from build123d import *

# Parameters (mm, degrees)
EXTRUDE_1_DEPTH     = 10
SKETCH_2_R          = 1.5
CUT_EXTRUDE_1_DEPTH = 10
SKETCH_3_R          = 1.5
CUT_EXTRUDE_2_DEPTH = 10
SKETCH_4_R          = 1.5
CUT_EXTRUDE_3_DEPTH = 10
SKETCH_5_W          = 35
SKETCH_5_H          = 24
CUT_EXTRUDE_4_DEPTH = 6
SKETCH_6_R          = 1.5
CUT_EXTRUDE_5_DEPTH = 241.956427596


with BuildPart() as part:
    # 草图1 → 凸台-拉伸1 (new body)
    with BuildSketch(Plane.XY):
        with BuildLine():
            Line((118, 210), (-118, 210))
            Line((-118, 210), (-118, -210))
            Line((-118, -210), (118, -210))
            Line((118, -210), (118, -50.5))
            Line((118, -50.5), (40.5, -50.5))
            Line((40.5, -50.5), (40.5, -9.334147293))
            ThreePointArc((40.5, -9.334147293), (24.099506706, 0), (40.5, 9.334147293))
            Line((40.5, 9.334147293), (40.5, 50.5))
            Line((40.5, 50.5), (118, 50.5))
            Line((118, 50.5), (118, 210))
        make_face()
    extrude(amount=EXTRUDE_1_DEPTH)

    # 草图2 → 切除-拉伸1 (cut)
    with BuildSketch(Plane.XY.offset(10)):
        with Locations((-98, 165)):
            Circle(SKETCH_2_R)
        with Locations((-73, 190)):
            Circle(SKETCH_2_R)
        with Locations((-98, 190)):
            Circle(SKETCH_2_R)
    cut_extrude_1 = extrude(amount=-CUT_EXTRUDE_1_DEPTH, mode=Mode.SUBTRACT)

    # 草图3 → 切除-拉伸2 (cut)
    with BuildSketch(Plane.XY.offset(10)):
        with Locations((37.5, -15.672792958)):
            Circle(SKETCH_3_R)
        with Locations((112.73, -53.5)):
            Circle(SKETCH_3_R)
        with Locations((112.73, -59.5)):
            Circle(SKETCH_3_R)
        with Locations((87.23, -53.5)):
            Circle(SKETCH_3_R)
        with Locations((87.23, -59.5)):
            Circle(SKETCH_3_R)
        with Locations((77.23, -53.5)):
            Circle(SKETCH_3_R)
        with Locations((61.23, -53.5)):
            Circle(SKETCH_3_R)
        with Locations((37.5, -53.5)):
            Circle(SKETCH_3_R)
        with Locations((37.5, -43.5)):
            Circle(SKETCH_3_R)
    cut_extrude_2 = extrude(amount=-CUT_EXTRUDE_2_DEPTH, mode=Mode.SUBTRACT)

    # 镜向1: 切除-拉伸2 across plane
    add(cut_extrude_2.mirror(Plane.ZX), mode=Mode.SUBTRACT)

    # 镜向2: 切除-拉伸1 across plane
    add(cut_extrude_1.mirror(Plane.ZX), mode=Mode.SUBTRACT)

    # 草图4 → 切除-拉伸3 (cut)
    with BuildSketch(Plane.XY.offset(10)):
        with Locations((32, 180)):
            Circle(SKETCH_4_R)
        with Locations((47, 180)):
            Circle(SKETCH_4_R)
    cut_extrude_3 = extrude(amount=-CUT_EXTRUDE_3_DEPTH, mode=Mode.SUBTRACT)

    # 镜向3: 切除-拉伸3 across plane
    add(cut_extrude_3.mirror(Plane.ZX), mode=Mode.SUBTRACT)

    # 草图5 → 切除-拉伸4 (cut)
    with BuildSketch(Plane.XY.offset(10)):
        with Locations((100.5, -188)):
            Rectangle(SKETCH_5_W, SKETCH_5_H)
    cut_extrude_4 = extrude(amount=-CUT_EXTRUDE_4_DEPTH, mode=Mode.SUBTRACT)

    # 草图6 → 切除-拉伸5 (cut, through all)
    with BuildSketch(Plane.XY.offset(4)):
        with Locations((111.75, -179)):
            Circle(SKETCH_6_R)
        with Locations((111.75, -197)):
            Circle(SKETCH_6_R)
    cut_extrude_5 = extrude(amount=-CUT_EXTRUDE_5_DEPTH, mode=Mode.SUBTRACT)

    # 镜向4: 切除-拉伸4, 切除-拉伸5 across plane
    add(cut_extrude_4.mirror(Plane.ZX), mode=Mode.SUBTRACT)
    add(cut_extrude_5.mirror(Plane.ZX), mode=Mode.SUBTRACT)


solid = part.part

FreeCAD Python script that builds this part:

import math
import FreeCAD as App
import Part
import Sketcher


def add_polygon(sketch, points):
    """Adds a closed chain of lines whose ends are joined by coincident constraints."""
    first, n = sketch.GeometryCount, len(points)
    for a, b in zip(points, points[1:] + points[:1]):
        sketch.addGeometry(Part.LineSegment(App.Vector(*a, 0), App.Vector(*b, 0)), False)
    for i in range(n):
        sketch.addConstraint(Sketcher.Constraint("Coincident", first + i, 2, first + (i + 1) % n, 1))

doc = App.newDocument("Part")
body = doc.addObject("PartDesign::Body", "Body")

# Sketch on XY plane
sketch1 = body.newObject("Sketcher::SketchObject", "Sketch")
sketch1.AttachmentSupport = (doc.getObject("XY_Plane"), [""])
sketch1.MapMode = "FlatFace"
sketch1.addGeometry(Part.LineSegment(App.Vector(118, 210, 0), App.Vector(-118, 210, 0)), False)
sketch1.addGeometry(Part.LineSegment(App.Vector(-118, 210, 0), App.Vector(-118, -210, 0)), False)
sketch1.addGeometry(Part.LineSegment(App.Vector(-118, -210, 0), App.Vector(118, -210, 0)), False)
sketch1.addGeometry(Part.LineSegment(App.Vector(118, -210, 0), App.Vector(118, -50, 0)), False)
sketch1.addGeometry(Part.LineSegment(App.Vector(118, -50, 0), App.Vector(40, -50, 0)), False)
sketch1.addGeometry(Part.LineSegment(App.Vector(40, -50, 0), App.Vector(40, -9, 0)), False)
sketch1.addGeometry(Part.ArcOfCircle(Part.Circle(App.Vector(35, 0, 0), App.Vector(0, 0, 1), 11), math.radians(59), math.radians(301)), False)
sketch1.addGeometry(Part.LineSegment(App.Vector(40, 9, 0), App.Vector(40, 50, 0)), False)
sketch1.addGeometry(Part.LineSegment(App.Vector(40, 50, 0), App.Vector(118, 50, 0)), False)
sketch1.addGeometry(Part.LineSegment(App.Vector(118, 50, 0), App.Vector(118, 210, 0)), False)
sketch1.addConstraint(Sketcher.Constraint("Coincident", 0, 2, 1, 1))
sketch1.addConstraint(Sketcher.Constraint("Coincident", 1, 2, 2, 1))
sketch1.addConstraint(Sketcher.Constraint("Coincident", 2, 2, 3, 1))
sketch1.addConstraint(Sketcher.Constraint("Coincident", 3, 2, 4, 1))
sketch1.addConstraint(Sketcher.Constraint("Coincident", 4, 2, 5, 1))
sketch1.addConstraint(Sketcher.Constraint("Coincident", 5, 2, 6, 2))
sketch1.addConstraint(Sketcher.Constraint("Coincident", 6, 1, 7, 1))
sketch1.addConstraint(Sketcher.Constraint("Coincident", 7, 2, 8, 1))
sketch1.addConstraint(Sketcher.Constraint("Coincident", 8, 2, 9, 1))
sketch1.addConstraint(Sketcher.Constraint("Coincident", 9, 2, 0, 1))
sketch1.addConstraint(Sketcher.Constraint("Horizontal", 0))
sketch1.addConstraint(Sketcher.Constraint("Vertical", 1))
sketch1.addConstraint(Sketcher.Constraint("Horizontal", 2))
sketch1.addConstraint(Sketcher.Constraint("Vertical", 3))
sketch1.addConstraint(Sketcher.Constraint("Horizontal", 4))
sketch1.addConstraint(Sketcher.Constraint("Vertical", 5))
sketch1.addConstraint(Sketcher.Constraint("Vertical", 7))
sketch1.addConstraint(Sketcher.Constraint("Horizontal", 8))
sketch1.addConstraint(Sketcher.Constraint("Vertical", 9))
sketch1.addConstraint(Sketcher.Constraint("Symmetric", 0, 2, 2, 2, -1, 1))
sketch1.addConstraint(Sketcher.Constraint("Symmetric", 5, 2, 6, 1, -1))
sketch1.addConstraint(Sketcher.Constraint("Symmetric", 3, 2, 8, 2, -1))
sketch1.addConstraint(Sketcher.Constraint("DistanceX", 0, 2, 0, 1, 236.0))
sketch1.addConstraint(Sketcher.Constraint("DistanceY", 1, 2, 1, 1, 420.0))
sketch1.addConstraint(Sketcher.Constraint("DistanceX", 4, 2, 4, 1, 77.5))
sketch1.addConstraint(Sketcher.Constraint("DistanceY", 3, 1, 3, 2, 159.5))
sketch1.addConstraint(Sketcher.Constraint("Radius", 6, 10.856457))
sketch1.addConstraint(Sketcher.Constraint("DistanceY", 5, 1, 5, 2, 41.165853))
pad1 = body.newObject("PartDesign::Pad", "Pad")
pad1.Profile = sketch1
pad1.Length = 10

# Sketch on XY plane
sketch2 = body.newObject("Sketcher::SketchObject", "Sketch001")
sketch2.AttachmentSupport = (doc.getObject("XY_Plane"), [""])
sketch2.MapMode = "FlatFace"
sketch2.AttachmentOffset = App.Placement(App.Vector(0, 0, 10), App.Rotation())
sketch2.addGeometry(Part.Circle(App.Vector(-98, 165, 0), App.Vector(0, 0, 1), 1.5), False)
sketch2.addGeometry(Part.Circle(App.Vector(-73, 190, 0), App.Vector(0, 0, 1), 1.5), False)
sketch2.addGeometry(Part.Circle(App.Vector(-98, 190, 0), App.Vector(0, 0, 1), 1.5), False)
sketch2.addConstraint(Sketcher.Constraint("Equal", 0, 1))
sketch2.addConstraint(Sketcher.Constraint("Equal", 1, 2))
sketch2.addConstraint(Sketcher.Constraint("Horizontal", 1, 3, 2, 3))
sketch2.addConstraint(Sketcher.Constraint("Vertical", 0, 3, 2, 3))
sketch2.addConstraint(Sketcher.Constraint("Diameter", 0, 3.0))
sketch2.addConstraint(Sketcher.Constraint("DistanceX", 0, 3, -1, 1, 98.0))
sketch2.addConstraint(Sketcher.Constraint("DistanceY", -1, 1, 0, 3, 165.0))
sketch2.addConstraint(Sketcher.Constraint("DistanceX", 1, 3, -1, 1, 73.0))
sketch2.addConstraint(Sketcher.Constraint("DistanceY", -1, 1, 1, 3, 190.0))
pocket1 = body.newObject("PartDesign::Pocket", "Pocket")
pocket1.Profile = sketch2
pocket1.Length = 10

# Sketch on XY plane
sketch3 = body.newObject("Sketcher::SketchObject", "Sketch002")
sketch3.AttachmentSupport = (doc.getObject("XY_Plane"), [""])
sketch3.MapMode = "FlatFace"
sketch3.AttachmentOffset = App.Placement(App.Vector(0, 0, 10), App.Rotation())
sketch3.addGeometry(Part.Circle(App.Vector(37.5, -15.7, 0), App.Vector(0, 0, 1), 1.5), False)
sketch3.addGeometry(Part.Circle(App.Vector(112.7, -53.5, 0), App.Vector(0, 0, 1), 1.5), False)
sketch3.addGeometry(Part.Circle(App.Vector(112.7, -59.5, 0), App.Vector(0, 0, 1), 1.5), False)
sketch3.addGeometry(Part.Circle(App.Vector(87.2, -53.5, 0), App.Vector(0, 0, 1), 1.5), False)
sketch3.addGeometry(Part.Circle(App.Vector(87.2, -59.5, 0), App.Vector(0, 0, 1), 1.5), False)
sketch3.addGeometry(Part.Circle(App.Vector(77.2, -53.5, 0), App.Vector(0, 0, 1), 1.5), False)
sketch3.addGeometry(Part.Circle(App.Vector(61.2, -53.5, 0), App.Vector(0, 0, 1), 1.5), False)
sketch3.addGeometry(Part.Circle(App.Vector(37.5, -53.5, 0), App.Vector(0, 0, 1), 1.5), False)
sketch3.addGeometry(Part.Circle(App.Vector(37.5, -43.5, 0), App.Vector(0, 0, 1), 1.5), False)
sketch3.addConstraint(Sketcher.Constraint("Equal", 0, 1))
sketch3.addConstraint(Sketcher.Constraint("Equal", 1, 2))
sketch3.addConstraint(Sketcher.Constraint("Equal", 2, 3))
sketch3.addConstraint(Sketcher.Constraint("Equal", 3, 4))
sketch3.addConstraint(Sketcher.Constraint("Equal", 4, 5))
sketch3.addConstraint(Sketcher.Constraint("Equal", 5, 6))
sketch3.addConstraint(Sketcher.Constraint("Equal", 6, 7))
sketch3.addConstraint(Sketcher.Constraint("Equal", 7, 8))
sketch3.addConstraint(Sketcher.Constraint("Horizontal", 1, 3, 3, 3))
sketch3.addConstraint(Sketcher.Constraint("Horizontal", 2, 3, 4, 3))
sketch3.addConstraint(Sketcher.Constraint("Horizontal", 3, 3, 5, 3))
sketch3.addConstraint(Sketcher.Constraint("Horizontal", 5, 3, 6, 3))
sketch3.addConstraint(Sketcher.Constraint("Horizontal", 6, 3, 7, 3))
sketch3.addConstraint(Sketcher.Constraint("Vertical", 1, 3, 2, 3))
sketch3.addConstraint(Sketcher.Constraint("Vertical", 3, 3, 4, 3))
sketch3.addConstraint(Sketcher.Constraint("Vertical", 0, 3, 7, 3))
sketch3.addConstraint(Sketcher.Constraint("Vertical", 7, 3, 8, 3))
sketch3.addConstraint(Sketcher.Constraint("Diameter", 0, 3.0))
sketch3.addConstraint(Sketcher.Constraint("DistanceY", 2, 3, 1, 3, 6.0))
sketch3.addConstraint(Sketcher.Constraint("DistanceX", 5, 3, 3, 3, 10.0))
sketch3.addConstraint(Sketcher.Constraint("DistanceX", 6, 3, 5, 3, 16.0))
sketch3.addConstraint(Sketcher.Constraint("DistanceY", 7, 3, 8, 3, 10.0))
sketch3.addConstraint(Sketcher.Constraint("DistanceX", -1, 1, 0, 3, 37.5))
sketch3.addConstraint(Sketcher.Constraint("DistanceY", 1, 3, -1, 1, 53.5))
sketch3.addConstraint(Sketcher.Constraint("DistanceX", 3, 3, 1, 3, 25.5))
sketch3.addConstraint(Sketcher.Constraint("DistanceX", -1, 1, 1, 3, 112.73))
sketch3.addConstraint(Sketcher.Constraint("DistanceY", 0, 3, -1, 1, 15.672793))
pocket2 = body.newObject("PartDesign::Pocket", "Pocket001")
pocket2.Profile = sketch3
pocket2.Length = 10
doc.recompute()

mirrored = body.newObject("PartDesign::Mirrored", "Mirrored")
mirrored.Originals = [pocket2]
mirrored.MirrorPlane = (doc.getObject("XZ_Plane"), [""])
body.Tip = mirrored
doc.recompute()

mirrored2 = body.newObject("PartDesign::Mirrored", "Mirrored001")
mirrored2.Originals = [pocket1]
mirrored2.MirrorPlane = (doc.getObject("XZ_Plane"), [""])
body.Tip = mirrored2

# Sketch on XY plane
sketch4 = body.newObject("Sketcher::SketchObject", "Sketch003")
sketch4.AttachmentSupport = (doc.getObject("XY_Plane"), [""])
sketch4.MapMode = "FlatFace"
sketch4.AttachmentOffset = App.Placement(App.Vector(0, 0, 10), App.Rotation())
sketch4.addGeometry(Part.Circle(App.Vector(32, 180, 0), App.Vector(0, 0, 1), 1.5), False)
sketch4.addGeometry(Part.Circle(App.Vector(47, 180, 0), App.Vector(0, 0, 1), 1.5), False)
sketch4.addConstraint(Sketcher.Constraint("Equal", 0, 1))
sketch4.addConstraint(Sketcher.Constraint("Horizontal", 0, 3, 1, 3))
sketch4.addConstraint(Sketcher.Constraint("Diameter", 0, 3.0))
sketch4.addConstraint(Sketcher.Constraint("DistanceX", -1, 1, 0, 3, 32.0))
sketch4.addConstraint(Sketcher.Constraint("DistanceY", -1, 1, 0, 3, 180.0))
sketch4.addConstraint(Sketcher.Constraint("DistanceX", -1, 1, 1, 3, 47.0))
pocket3 = body.newObject("PartDesign::Pocket", "Pocket002")
pocket3.Profile = sketch4
pocket3.Length = 10
doc.recompute()

mirrored3 = body.newObject("PartDesign::Mirrored", "Mirrored002")
mirrored3.Originals = [pocket3]
mirrored3.MirrorPlane = (doc.getObject("XZ_Plane"), [""])
body.Tip = mirrored3

# Sketch on XY plane
sketch5 = body.newObject("Sketcher::SketchObject", "Sketch004")
sketch5.AttachmentSupport = (doc.getObject("XY_Plane"), [""])
sketch5.MapMode = "FlatFace"
sketch5.AttachmentOffset = App.Placement(App.Vector(0, 0, 10), App.Rotation())
add_polygon(sketch5, [(83, -176), (83, -200), (118, -200), (118, -176)])  # lines 0-3
sketch5.addConstraint(Sketcher.Constraint("Vertical", 0))
sketch5.addConstraint(Sketcher.Constraint("Horizontal", 1))
sketch5.addConstraint(Sketcher.Constraint("Vertical", 2))
sketch5.addConstraint(Sketcher.Constraint("Horizontal", 3))
sketch5.addConstraint(Sketcher.Constraint("DistanceX", 1, 1, 1, 2, 35.0))
sketch5.addConstraint(Sketcher.Constraint("DistanceY", 0, 2, 0, 1, 24.0))
sketch5.addConstraint(Sketcher.Constraint("DistanceX", -1, 1, 0, 2, 83.0))
sketch5.addConstraint(Sketcher.Constraint("DistanceY", 0, 2, -1, 1, 200.0))
pocket4 = body.newObject("PartDesign::Pocket", "Pocket003")
pocket4.Profile = sketch5
pocket4.Length = 6

# Sketch on XY plane
sketch6 = body.newObject("Sketcher::SketchObject", "Sketch005")
sketch6.AttachmentSupport = (doc.getObject("XY_Plane"), [""])
sketch6.MapMode = "FlatFace"
sketch6.AttachmentOffset = App.Placement(App.Vector(0, 0, 4), App.Rotation())
sketch6.addGeometry(Part.Circle(App.Vector(111.8, -179, 0), App.Vector(0, 0, 1), 1.5), False)
sketch6.addGeometry(Part.Circle(App.Vector(111.8, -197, 0), App.Vector(0, 0, 1), 1.5), False)
sketch6.addConstraint(Sketcher.Constraint("Equal", 0, 1))
sketch6.addConstraint(Sketcher.Constraint("Vertical", 0, 3, 1, 3))
sketch6.addConstraint(Sketcher.Constraint("Diameter", 0, 3.0))
sketch6.addConstraint(Sketcher.Constraint("DistanceY", 0, 3, -1, 1, 179.0))
sketch6.addConstraint(Sketcher.Constraint("DistanceY", 1, 3, -1, 1, 197.0))
sketch6.addConstraint(Sketcher.Constraint("DistanceX", -1, 1, 0, 3, 111.75))
pocket5 = body.newObject("PartDesign::Pocket", "Pocket004")
pocket5.Profile = sketch6
pocket5.Type = "ThroughAll"
doc.recompute()

mirrored4 = body.newObject("PartDesign::Mirrored", "Mirrored003")
mirrored4.Originals = [pocket4, pocket5]
mirrored4.MirrorPlane = (doc.getObject("XZ_Plane"), [""])
body.Tip = mirrored4

doc.recompute()
